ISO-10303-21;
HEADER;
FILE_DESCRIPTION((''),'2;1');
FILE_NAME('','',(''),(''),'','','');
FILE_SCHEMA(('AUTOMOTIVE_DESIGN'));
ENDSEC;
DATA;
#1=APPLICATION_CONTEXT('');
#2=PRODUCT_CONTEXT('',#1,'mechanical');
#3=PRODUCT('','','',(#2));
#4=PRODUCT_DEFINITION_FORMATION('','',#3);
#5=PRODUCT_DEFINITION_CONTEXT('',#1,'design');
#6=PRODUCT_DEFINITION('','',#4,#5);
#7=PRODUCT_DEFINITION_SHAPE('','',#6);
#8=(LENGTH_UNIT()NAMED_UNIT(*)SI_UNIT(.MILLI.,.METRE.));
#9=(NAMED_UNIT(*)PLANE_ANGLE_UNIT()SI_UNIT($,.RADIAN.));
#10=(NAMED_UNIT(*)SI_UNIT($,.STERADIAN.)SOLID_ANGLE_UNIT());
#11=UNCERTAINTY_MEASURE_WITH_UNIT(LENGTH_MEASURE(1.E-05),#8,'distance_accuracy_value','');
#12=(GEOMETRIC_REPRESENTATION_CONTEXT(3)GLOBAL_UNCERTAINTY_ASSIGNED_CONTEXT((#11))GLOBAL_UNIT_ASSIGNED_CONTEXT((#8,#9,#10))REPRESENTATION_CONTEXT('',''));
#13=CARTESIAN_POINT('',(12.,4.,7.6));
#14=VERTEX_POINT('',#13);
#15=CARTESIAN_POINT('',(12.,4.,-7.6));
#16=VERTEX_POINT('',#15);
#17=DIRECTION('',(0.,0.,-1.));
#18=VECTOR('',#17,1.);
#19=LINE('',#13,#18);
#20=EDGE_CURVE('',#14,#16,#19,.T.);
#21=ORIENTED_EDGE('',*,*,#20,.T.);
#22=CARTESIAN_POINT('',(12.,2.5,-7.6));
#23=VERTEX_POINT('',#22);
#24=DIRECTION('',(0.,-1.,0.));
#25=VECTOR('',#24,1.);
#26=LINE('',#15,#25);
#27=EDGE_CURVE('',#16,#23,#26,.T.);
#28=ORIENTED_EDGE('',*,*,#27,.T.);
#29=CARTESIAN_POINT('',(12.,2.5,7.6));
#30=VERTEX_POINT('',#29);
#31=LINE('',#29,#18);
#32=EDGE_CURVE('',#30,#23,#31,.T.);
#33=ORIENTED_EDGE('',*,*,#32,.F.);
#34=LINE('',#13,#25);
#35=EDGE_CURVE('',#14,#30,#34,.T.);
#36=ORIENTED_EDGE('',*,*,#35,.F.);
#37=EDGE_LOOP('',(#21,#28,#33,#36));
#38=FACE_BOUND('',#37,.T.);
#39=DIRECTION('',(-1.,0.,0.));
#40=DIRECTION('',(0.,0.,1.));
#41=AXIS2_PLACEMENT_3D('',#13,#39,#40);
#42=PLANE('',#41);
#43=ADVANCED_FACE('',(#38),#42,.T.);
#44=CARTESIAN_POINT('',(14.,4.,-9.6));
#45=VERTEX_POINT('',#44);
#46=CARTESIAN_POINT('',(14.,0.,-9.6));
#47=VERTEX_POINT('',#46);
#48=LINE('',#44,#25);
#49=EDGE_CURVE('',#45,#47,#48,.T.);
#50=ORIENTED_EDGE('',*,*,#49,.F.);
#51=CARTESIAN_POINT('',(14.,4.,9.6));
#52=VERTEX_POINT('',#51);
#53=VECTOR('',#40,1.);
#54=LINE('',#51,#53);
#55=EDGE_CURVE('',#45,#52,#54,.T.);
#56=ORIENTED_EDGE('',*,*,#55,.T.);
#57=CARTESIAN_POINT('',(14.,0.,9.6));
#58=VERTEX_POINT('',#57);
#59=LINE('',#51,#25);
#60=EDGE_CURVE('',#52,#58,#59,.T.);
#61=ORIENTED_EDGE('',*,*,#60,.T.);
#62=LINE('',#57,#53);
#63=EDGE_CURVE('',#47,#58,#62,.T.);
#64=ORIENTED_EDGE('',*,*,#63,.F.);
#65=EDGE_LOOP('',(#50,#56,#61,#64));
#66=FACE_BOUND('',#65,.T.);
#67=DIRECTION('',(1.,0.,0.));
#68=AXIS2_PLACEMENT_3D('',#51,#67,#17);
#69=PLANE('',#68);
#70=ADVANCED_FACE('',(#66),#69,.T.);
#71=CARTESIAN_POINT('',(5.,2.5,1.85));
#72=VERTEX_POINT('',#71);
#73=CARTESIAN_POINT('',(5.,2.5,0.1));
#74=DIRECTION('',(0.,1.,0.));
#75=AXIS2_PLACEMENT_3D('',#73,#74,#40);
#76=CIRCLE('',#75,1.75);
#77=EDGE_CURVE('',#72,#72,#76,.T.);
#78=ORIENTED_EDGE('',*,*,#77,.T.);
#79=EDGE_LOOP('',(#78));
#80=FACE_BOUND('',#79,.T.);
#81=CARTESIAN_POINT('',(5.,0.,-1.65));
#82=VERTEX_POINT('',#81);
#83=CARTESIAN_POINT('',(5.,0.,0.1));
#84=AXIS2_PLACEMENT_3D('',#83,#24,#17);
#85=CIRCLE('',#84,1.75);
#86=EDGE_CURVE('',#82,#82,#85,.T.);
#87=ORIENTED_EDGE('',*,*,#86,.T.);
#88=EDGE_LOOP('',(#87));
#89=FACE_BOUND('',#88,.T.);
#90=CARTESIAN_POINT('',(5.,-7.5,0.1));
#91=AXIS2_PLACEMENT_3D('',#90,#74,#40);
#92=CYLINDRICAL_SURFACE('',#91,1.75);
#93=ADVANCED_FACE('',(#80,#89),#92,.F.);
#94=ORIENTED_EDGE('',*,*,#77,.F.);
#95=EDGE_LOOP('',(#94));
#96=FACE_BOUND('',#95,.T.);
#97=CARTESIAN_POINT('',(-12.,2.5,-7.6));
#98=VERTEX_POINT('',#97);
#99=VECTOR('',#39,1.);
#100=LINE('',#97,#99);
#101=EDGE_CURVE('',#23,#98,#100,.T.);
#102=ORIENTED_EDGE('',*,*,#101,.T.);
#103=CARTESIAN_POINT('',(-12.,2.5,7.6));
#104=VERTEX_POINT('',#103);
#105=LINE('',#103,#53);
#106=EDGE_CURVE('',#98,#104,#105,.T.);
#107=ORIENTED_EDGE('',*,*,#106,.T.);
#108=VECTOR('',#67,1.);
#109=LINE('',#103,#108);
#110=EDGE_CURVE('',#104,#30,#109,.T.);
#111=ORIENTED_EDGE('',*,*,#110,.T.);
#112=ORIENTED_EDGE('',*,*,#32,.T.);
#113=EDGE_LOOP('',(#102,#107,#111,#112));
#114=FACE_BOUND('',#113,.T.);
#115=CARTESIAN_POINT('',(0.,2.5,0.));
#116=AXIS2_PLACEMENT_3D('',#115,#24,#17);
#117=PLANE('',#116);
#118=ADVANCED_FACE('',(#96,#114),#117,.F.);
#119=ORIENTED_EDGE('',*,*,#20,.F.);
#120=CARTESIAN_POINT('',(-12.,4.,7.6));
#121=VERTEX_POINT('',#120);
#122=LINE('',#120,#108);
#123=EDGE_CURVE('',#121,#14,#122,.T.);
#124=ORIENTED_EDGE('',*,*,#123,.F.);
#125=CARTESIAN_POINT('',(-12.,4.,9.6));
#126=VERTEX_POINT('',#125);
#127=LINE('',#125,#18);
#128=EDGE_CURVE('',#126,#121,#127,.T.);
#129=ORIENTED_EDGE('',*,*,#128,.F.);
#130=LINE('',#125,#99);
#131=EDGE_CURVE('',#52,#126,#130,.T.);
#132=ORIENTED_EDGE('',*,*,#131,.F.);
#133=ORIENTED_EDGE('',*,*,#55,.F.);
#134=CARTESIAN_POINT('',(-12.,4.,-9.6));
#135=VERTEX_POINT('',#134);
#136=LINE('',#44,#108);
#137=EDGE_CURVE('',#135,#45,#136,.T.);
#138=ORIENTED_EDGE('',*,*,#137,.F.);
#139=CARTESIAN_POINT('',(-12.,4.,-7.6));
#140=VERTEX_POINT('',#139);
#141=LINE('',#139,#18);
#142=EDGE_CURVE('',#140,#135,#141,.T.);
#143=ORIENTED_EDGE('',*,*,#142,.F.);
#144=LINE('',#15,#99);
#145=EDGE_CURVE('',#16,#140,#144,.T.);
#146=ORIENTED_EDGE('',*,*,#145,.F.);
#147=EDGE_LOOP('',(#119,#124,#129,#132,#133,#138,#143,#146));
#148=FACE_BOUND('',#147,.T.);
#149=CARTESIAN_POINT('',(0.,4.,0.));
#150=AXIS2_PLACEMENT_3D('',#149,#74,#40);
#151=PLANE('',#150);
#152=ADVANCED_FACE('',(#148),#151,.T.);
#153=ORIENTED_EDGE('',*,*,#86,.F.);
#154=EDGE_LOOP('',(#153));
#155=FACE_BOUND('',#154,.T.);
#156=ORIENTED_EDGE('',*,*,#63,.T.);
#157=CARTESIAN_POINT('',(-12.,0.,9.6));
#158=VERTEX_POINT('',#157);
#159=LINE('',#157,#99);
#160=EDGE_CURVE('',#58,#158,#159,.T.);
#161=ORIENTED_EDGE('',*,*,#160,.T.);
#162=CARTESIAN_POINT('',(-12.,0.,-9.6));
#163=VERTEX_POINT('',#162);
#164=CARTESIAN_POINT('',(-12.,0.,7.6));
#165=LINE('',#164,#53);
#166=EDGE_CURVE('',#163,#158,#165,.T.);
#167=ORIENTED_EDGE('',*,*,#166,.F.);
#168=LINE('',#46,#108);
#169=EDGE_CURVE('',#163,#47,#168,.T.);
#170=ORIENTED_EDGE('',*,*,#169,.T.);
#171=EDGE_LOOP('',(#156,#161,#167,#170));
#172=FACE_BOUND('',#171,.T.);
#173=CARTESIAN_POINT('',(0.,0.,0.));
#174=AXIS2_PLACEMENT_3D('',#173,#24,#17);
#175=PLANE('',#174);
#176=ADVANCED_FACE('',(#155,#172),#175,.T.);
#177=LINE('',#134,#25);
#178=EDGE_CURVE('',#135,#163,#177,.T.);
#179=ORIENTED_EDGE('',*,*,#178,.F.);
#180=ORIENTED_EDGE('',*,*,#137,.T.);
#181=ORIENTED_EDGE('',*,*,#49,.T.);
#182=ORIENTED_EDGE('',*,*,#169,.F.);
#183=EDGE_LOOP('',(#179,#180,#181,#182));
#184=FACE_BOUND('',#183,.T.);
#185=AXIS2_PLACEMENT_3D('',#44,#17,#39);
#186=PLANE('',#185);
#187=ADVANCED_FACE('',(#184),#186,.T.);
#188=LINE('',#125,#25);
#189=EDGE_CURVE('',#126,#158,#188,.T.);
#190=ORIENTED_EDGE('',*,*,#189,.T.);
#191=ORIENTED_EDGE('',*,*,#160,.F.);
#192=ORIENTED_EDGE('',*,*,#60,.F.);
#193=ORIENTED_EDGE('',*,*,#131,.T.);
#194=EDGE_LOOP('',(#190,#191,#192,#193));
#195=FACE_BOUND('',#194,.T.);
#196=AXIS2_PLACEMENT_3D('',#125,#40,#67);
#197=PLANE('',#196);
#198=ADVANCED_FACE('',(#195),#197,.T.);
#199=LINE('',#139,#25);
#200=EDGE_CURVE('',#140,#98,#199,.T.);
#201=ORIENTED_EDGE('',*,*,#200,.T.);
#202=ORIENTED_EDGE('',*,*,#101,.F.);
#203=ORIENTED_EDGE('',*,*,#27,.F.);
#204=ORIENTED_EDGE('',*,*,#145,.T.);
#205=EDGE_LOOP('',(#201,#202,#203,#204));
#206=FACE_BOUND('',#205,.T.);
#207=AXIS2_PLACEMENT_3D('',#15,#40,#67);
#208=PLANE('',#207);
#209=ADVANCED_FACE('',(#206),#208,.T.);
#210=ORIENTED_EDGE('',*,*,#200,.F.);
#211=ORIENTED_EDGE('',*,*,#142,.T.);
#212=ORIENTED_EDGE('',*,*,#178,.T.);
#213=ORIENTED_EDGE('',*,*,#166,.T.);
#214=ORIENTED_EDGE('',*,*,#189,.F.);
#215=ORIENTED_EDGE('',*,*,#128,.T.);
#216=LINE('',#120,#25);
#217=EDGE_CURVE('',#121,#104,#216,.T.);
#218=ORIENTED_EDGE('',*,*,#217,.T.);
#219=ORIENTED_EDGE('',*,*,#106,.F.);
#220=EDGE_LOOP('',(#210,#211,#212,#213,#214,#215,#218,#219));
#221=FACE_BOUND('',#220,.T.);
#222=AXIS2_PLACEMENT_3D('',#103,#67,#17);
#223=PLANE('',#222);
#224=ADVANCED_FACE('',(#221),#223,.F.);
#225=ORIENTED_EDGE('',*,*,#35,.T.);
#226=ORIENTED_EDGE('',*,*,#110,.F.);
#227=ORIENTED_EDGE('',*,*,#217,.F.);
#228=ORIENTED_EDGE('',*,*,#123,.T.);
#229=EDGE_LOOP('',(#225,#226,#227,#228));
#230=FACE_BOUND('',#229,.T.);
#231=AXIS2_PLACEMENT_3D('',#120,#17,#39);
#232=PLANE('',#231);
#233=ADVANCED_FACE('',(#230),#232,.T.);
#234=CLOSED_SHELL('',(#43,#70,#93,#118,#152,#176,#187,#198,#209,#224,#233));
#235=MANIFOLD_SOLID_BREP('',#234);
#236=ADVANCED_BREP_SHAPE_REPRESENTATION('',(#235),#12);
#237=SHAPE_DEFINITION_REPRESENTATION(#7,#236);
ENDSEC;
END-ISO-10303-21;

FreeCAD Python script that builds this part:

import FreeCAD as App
import Part
import Sketcher
from FreeCAD import Vector


def add_polygon(sketch, points):
    """Adds a closed chain of lines whose ends are joined by coincident constraints."""
    first, n = sketch.GeometryCount, len(points)
    for a, b in zip(points, points[1:] + points[:1]):
        sketch.addGeometry(Part.LineSegment(App.Vector(*a, 0), App.Vector(*b, 0)), False)
    for i in range(n):
        sketch.addConstraint(Sketcher.Constraint("Coincident", first + i, 2, first + (i + 1) % n, 1))

doc = App.newDocument("Part")
body = doc.addObject("PartDesign::Body", "Body")

# Sketch on XZ plane
sketch1 = body.newObject("Sketcher::SketchObject", "Sketch")
sketch1.AttachmentSupport = (doc.getObject("XZ_Plane"), [""])
sketch1.MapMode = "FlatFace"
add_polygon(sketch1, [(-12, -7.6), (-12, 7.6), (12, 7.6), (12, -7.6)])  # lines 0-3
sketch1.addConstraint([
    Sketcher.Constraint("Vertical", 0),
    Sketcher.Constraint("Horizontal", 1),
    Sketcher.Constraint("Vertical", 2),
    Sketcher.Constraint("Horizontal", 3),
    Sketcher.Constraint("Symmetric", 0, 2, 2, 2, -1, 1),
    Sketcher.Constraint("DistanceX", 1, 1, 1, 2, 24.0),
    Sketcher.Constraint("DistanceY", 0, 1, 0, 2, 15.2),
])
pad1 = body.newObject("PartDesign::Pad", "Pad")
pad1.Profile = sketch1
pad1.Length = 2.5
pad1.Reversed = True

# Sketch on XZ plane
sketch2 = body.newObject("Sketcher::SketchObject", "Sketch001")
sketch2.AttachmentSupport = (doc.getObject("XZ_Plane"), [""])
sketch2.MapMode = "FlatFace"
sketch2.AttachmentOffset = App.Placement(Vector(0, 0, -2.5), App.Rotation())
sketch2.addGeometry(Part.Circle(Vector(5, 0.1, 0), Vector(0, 0, 1), 1.75), False)
sketch2.addConstraint([
    Sketcher.Constraint("Diameter", 0, 3.5),
    Sketcher.Constraint("DistanceX", -1, 1, 0, 3, 5.0),
    Sketcher.Constraint("DistanceY", -1, 1, 0, 3, 0.1),
])
pocket1 = body.newObject("PartDesign::Pocket", "Pocket")
pocket1.Profile = sketch2
pocket1.Length = 10
pocket1.Reversed = True

# Sketch on XZ plane
sketch3 = body.newObject("Sketcher::SketchObject", "Sketch002")
sketch3.AttachmentSupport = (doc.getObject("XZ_Plane"), [""])
sketch3.MapMode = "FlatFace"
add_polygon(sketch3, [(-12, 9.6), (-12, 7.6), (12, 7.6), (12, -7.6), (-12, -7.6), (-12, -9.6), (14, -9.6), (14, 9.6)])  # lines 0-7
sketch3.addConstraint([
    Sketcher.Constraint("Vertical", 0),
    Sketcher.Constraint("Horizontal", 1),
    Sketcher.Constraint("Vertical", 2),
    Sketcher.Constraint("Horizontal", 3),
    Sketcher.Constraint("Vertical", 4),
    Sketcher.Constraint("Horizontal", 5),
    Sketcher.Constraint("Vertical", 6),
    Sketcher.Constraint("Horizontal", 7),
    Sketcher.Constraint("Symmetric", 0, 2, 2, 2, -1, 1),
    Sketcher.Constraint("Symmetric", 4, 2, 7, 2, -1),
    Sketcher.Constraint("DistanceX", 1, 1, 1, 2, 24.0),
    Sketcher.Constraint("DistanceX", 5, 1, 5, 2, 26.0),
    Sketcher.Constraint("DistanceY", 0, 2, 0, 1, 2.0),
    Sketcher.Constraint("DistanceY", 2, 2, 2, 1, 15.2),
])
pad2 = body.newObject("PartDesign::Pad", "Pad001")
pad2.Profile = sketch3
pad2.Length = 4
pad2.Reversed = True

doc.recompute()
